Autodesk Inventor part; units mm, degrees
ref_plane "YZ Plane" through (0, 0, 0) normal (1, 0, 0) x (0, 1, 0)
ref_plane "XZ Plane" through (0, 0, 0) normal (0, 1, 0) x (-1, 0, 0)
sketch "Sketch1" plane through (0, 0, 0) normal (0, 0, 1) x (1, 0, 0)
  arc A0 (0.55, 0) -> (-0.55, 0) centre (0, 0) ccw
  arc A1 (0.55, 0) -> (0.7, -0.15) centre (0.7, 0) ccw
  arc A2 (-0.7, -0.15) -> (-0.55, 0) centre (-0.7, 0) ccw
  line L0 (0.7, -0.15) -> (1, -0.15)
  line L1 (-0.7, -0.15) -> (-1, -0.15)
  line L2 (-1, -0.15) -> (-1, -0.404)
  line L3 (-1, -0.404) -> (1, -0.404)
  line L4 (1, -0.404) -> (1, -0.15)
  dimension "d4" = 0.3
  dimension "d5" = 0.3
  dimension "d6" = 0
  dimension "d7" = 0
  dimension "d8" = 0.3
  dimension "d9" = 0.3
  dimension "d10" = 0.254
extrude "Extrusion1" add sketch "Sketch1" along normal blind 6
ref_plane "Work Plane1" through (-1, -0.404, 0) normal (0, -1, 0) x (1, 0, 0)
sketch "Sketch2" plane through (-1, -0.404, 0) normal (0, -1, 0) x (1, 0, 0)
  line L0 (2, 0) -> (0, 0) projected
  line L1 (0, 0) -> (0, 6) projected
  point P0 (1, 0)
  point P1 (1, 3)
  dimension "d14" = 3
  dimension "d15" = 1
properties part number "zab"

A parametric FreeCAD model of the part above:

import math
import FreeCAD as App
import Part
import Sketcher

V = App.Vector

doc = App.newDocument("Part")
body = doc.addObject("PartDesign::Body", "Body")

sketch1 = body.newObject("Sketcher::SketchObject", "Sketch")
sketch1.AttachmentSupport = (doc.getObject("XY_Plane"), [""])
sketch1.MapMode = "FlatFace"
sketch1.addGeometry(Part.ArcOfCircle(Part.Circle(V(0.7, 0, 0), V(0, 0, 1), 0.15), math.radians(180), math.radians(270)), False)
sketch1.addGeometry(Part.ArcOfCircle(Part.Circle(V(0, 0, 0), V(0, 0, 1), 0.55), math.radians(0), math.radians(180)), False)
sketch1.addGeometry(Part.ArcOfCircle(Part.Circle(V(-0.7, 0, 0), V(0, 0, 1), 0.15), math.radians(-90), math.radians(0)), False)
sketch1.addGeometry(Part.LineSegment(V(-0.7, -0.15, 0), V(-1, -0.15, 0)), False)
sketch1.addGeometry(Part.LineSegment(V(-1, -0.15, 0), V(-1, -0.4, 0)), False)
sketch1.addGeometry(Part.LineSegment(V(-1, -0.4, 0), V(1, -0.4, 0)), False)
sketch1.addGeometry(Part.LineSegment(V(1, -0.4, 0), V(1, -0.15, 0)), False)
sketch1.addGeometry(Part.LineSegment(V(1, -0.15, 0), V(0.7, -0.15, 0)), False)
sketch1.addConstraint(Sketcher.Constraint("Tangent", 0, 1, 1, 1))
sketch1.addConstraint(Sketcher.Constraint("Tangent", 1, 2, 2, 2))
sketch1.addConstraint(Sketcher.Constraint("Tangent", 2, 1, 3, 1))
sketch1.addConstraint(Sketcher.Constraint("Coincident", 3, 2, 4, 1))
sketch1.addConstraint(Sketcher.Constraint("Coincident", 4, 2, 5, 1))
sketch1.addConstraint(Sketcher.Constraint("Coincident", 5, 2, 6, 1))
sketch1.addConstraint(Sketcher.Constraint("Coincident", 6, 2, 7, 1))
sketch1.addConstraint(Sketcher.Constraint("Tangent", 7, 2, 0, 2))
sketch1.addConstraint(Sketcher.Constraint("Horizontal", 3))
sketch1.addConstraint(Sketcher.Constraint("Vertical", 4))
sketch1.addConstraint(Sketcher.Constraint("Horizontal", 5))
sketch1.addConstraint(Sketcher.Constraint("Vertical", 6))
sketch1.addConstraint(Sketcher.Constraint("Horizontal", 7))
sketch1.addConstraint(Sketcher.Constraint("Coincident", 1, 3, -1, 1))
sketch1.addConstraint(Sketcher.Constraint("Equal", 0, 2))
sketch1.addConstraint(Sketcher.Constraint("Symmetric", 3, 2, 6, 2, -2))
sketch1.addConstraint(Sketcher.Constraint("PointOnObject", 0, 3, -1))
sketch1.addConstraint(Sketcher.Constraint("Radius", 0, 0.15))
sketch1.addConstraint(Sketcher.Constraint("DistanceX", 3, 2, 3, 1, 0.3))
sketch1.addConstraint(Sketcher.Constraint("DistanceX", 5, 1, 5, 2, 2.0))
sketch1.addConstraint(Sketcher.Constraint("DistanceY", 4, 2, 4, 1, 0.254))
pad1 = body.newObject("PartDesign::Pad", "Pad")
pad1.Profile = sketch1
pad1.Length = 6

doc.recompute()
